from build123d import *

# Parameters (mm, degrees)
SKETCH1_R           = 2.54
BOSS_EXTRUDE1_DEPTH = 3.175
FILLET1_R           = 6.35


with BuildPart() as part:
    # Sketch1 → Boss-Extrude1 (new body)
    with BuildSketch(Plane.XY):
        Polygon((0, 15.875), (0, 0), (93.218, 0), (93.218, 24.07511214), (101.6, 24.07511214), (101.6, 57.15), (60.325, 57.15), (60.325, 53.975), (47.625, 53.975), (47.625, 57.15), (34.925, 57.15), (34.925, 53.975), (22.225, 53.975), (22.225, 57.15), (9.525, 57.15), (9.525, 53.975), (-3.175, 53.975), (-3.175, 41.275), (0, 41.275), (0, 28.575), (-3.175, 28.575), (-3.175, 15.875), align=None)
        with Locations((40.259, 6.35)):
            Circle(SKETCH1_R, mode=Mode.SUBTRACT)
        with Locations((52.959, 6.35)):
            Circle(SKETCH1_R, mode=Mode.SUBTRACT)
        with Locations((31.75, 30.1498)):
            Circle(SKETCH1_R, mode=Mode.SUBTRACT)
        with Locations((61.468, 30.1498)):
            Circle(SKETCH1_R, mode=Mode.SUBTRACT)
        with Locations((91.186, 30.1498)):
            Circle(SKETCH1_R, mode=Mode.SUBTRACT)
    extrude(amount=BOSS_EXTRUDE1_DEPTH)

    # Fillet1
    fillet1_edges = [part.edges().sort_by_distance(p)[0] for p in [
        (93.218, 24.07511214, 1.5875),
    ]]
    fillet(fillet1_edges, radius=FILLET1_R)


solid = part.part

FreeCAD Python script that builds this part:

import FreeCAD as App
import Part
import Sketcher
from FreeCAD import Vector
Q = App.Units.Quantity


def edges_at(feature, points):
    """Names of the edges that pass closest to the given points."""
    edges = feature.Shape.Edges
    near = lambda p: min(range(len(edges)), key=lambda i: edges[i].distToShape(Part.Vertex(*p))[0])
    return sorted({f"Edge{near(p) + 1}" for p in points})


def add_polygon(sketch, points):
    """Adds a closed chain of lines whose ends are joined by coincident constraints."""
    first, n = sketch.GeometryCount, len(points)
    for a, b in zip(points, points[1:] + points[:1]):
        sketch.addGeometry(Part.LineSegment(App.Vector(*a, 0), App.Vector(*b, 0)), False)
    for i in range(n):
        sketch.addConstraint(Sketcher.Constraint("Coincident", first + i, 2, first + (i + 1) % n, 1))

doc = App.newDocument("Part")
body = doc.addObject("PartDesign::Body", "Body")

# Sketch on XY plane
sketch1 = body.newObject("Sketcher::SketchObject", "Sketch")
sketch1.AttachmentSupport = (doc.getObject("XY_Plane"), [""])
sketch1.MapMode = "FlatFace"
add_polygon(sketch1, [(0, 15.9), (0, 0), (93.2, 0), (93.2, 24.1), (101.6, 24.1), (101.6, 57.1), (60.3, 57.1), (60.3, 54), (47.6, 54), (47.6, 57.1), (34.9, 57.1), (34.9, 54), (22.2, 54), (22.2, 57.1), (9.5, 57.1), (9.5, 54), (-3.2, 54), (-3.2, 41.3), (0, 41.3), (0, 28.6), (-3.2, 28.6), (-3.2, 15.9)])  # lines 0-21
sketch1.addGeometry(Part.Circle(Vector(40.3, 6.3, 0), Vector(0, 0, 1), 2.5), False)  # 22
sketch1.addGeometry(Part.Circle(Vector(53, 6.3, 0), Vector(0, 0, 1), 2.5), False)  # 23
sketch1.addGeometry(Part.Circle(Vector(31.8, 30.1, 0), Vector(0, 0, 1), 2.5), False)  # 24
sketch1.addGeometry(Part.Circle(Vector(61.5, 30.1, 0), Vector(0, 0, 1), 2.5), False)  # 25
sketch1.addGeometry(Part.Circle(Vector(91.2, 30.1, 0), Vector(0, 0, 1), 2.5), False)  # 26
sketch1.addConstraint([
    Sketcher.Constraint("Vertical", 0),
    Sketcher.Constraint("Horizontal", 1),
    Sketcher.Constraint("Vertical", 2),
    Sketcher.Constraint("Horizontal", 3),
    Sketcher.Constraint("Vertical", 4),
    Sketcher.Constraint("Horizontal", 5),
    Sketcher.Constraint("Vertical", 6),
    Sketcher.Constraint("Horizontal", 7),
    Sketcher.Constraint("Vertical", 8),
    Sketcher.Constraint("Horizontal", 9),
    Sketcher.Constraint("Vertical", 10),
    Sketcher.Constraint("Horizontal", 11),
    Sketcher.Constraint("Vertical", 12),
    Sketcher.Constraint("Horizontal", 13),
    Sketcher.Constraint("Vertical", 14),
    Sketcher.Constraint("Horizontal", 15),
    Sketcher.Constraint("Vertical", 16),
    Sketcher.Constraint("Horizontal", 17),
    Sketcher.Constraint("Vertical", 18),
    Sketcher.Constraint("Horizontal", 19),
    Sketcher.Constraint("Vertical", 20),
    Sketcher.Constraint("Horizontal", 21),
    Sketcher.Constraint("Coincident", 0, 2, -1, 1),
    Sketcher.Constraint("Equal", 22, 23),
    Sketcher.Constraint("Equal", 23, 24),
    Sketcher.Constraint("Equal", 24, 25),
    Sketcher.Constraint("Equal", 25, 26),
    Sketcher.Constraint("PointOnObject", 17, 2, -2),
    Sketcher.Constraint("Horizontal", 22, 3, 23, 3),
    Sketcher.Constraint("Horizontal", 24, 3, 25, 3),
    Sketcher.Constraint("Horizontal", 25, 3, 26, 3),
    Sketcher.Constraint("Horizontal", 5, 2, 8, 2),
    Sketcher.Constraint("Horizontal", 7, 2, 10, 2),
    Sketcher.Constraint("Horizontal", 9, 2, 12, 2),
    Sketcher.Constraint("Horizontal", 11, 2, 14, 2),
    Sketcher.Constraint("Vertical", 16, 2, 19, 2),
    Sketcher.Constraint("Equal", 7, 9),
    Sketcher.Constraint("Equal", 9, 11),
    Sketcher.Constraint("Equal", 11, 13),
    Sketcher.Constraint("Equal", 13, 15),
    Sketcher.Constraint("Equal", 21, 6),
    Sketcher.Constraint("Equal", 15, 16),
    Sketcher.Constraint("Equal", 16, 18),
    Sketcher.Constraint("Equal", 18, 20),
    Sketcher.Constraint("Diameter", 22, Q("0.2 in")),
    Sketcher.Constraint("DistanceX", 7, 2, 7, 1, Q("0.5 in")),
    Sketcher.Constraint("DistanceX", -1, 1, 3, 2, Q("4 in")),
    Sketcher.Constraint("DistanceX", 1, 1, 1, 2, Q("3.67 in")),
    Sketcher.Constraint("DistanceX", 22, 3, 23, 3, Q("0.5 in")),
    Sketcher.Constraint("DistanceX", 5, 2, 5, 1, Q("1.625 in")),
    Sketcher.Constraint("DistanceY", 0, 2, 0, 1, Q("0.625 in")),
    Sketcher.Constraint("DistanceY", -1, 1, 22, 3, Q("0.25 in")),
    Sketcher.Constraint("DistanceX", -1, 1, 24, 3, Q("1.25 in")),
    Sketcher.Constraint("DistanceX", -1, 1, 25, 3, Q("2.42 in")),
    Sketcher.Constraint("DistanceX", -1, 1, 26, 3, Q("3.59 in")),
    Sketcher.Constraint("DistanceX", 7, 2, 23, 3, Q("0.21 in")),
    Sketcher.Constraint("DistanceY", -1, 1, 24, 3, Q("1.187 in")),
    Sketcher.Constraint("DistanceY", 2, 1, 2, 2, 24.075112),
])
pad1 = body.newObject("PartDesign::Pad", "Pad")
pad1.Profile = sketch1
pad1.Length = Q("0.125 in")
doc.recompute()

fillet = body.newObject("PartDesign::Fillet", "Fillet")
fillet.Base = (pad1, edges_at(pad1, [(93.218, 24.075, 1.587)]))
fillet.Radius = Q("0.25 in")

doc.recompute()
